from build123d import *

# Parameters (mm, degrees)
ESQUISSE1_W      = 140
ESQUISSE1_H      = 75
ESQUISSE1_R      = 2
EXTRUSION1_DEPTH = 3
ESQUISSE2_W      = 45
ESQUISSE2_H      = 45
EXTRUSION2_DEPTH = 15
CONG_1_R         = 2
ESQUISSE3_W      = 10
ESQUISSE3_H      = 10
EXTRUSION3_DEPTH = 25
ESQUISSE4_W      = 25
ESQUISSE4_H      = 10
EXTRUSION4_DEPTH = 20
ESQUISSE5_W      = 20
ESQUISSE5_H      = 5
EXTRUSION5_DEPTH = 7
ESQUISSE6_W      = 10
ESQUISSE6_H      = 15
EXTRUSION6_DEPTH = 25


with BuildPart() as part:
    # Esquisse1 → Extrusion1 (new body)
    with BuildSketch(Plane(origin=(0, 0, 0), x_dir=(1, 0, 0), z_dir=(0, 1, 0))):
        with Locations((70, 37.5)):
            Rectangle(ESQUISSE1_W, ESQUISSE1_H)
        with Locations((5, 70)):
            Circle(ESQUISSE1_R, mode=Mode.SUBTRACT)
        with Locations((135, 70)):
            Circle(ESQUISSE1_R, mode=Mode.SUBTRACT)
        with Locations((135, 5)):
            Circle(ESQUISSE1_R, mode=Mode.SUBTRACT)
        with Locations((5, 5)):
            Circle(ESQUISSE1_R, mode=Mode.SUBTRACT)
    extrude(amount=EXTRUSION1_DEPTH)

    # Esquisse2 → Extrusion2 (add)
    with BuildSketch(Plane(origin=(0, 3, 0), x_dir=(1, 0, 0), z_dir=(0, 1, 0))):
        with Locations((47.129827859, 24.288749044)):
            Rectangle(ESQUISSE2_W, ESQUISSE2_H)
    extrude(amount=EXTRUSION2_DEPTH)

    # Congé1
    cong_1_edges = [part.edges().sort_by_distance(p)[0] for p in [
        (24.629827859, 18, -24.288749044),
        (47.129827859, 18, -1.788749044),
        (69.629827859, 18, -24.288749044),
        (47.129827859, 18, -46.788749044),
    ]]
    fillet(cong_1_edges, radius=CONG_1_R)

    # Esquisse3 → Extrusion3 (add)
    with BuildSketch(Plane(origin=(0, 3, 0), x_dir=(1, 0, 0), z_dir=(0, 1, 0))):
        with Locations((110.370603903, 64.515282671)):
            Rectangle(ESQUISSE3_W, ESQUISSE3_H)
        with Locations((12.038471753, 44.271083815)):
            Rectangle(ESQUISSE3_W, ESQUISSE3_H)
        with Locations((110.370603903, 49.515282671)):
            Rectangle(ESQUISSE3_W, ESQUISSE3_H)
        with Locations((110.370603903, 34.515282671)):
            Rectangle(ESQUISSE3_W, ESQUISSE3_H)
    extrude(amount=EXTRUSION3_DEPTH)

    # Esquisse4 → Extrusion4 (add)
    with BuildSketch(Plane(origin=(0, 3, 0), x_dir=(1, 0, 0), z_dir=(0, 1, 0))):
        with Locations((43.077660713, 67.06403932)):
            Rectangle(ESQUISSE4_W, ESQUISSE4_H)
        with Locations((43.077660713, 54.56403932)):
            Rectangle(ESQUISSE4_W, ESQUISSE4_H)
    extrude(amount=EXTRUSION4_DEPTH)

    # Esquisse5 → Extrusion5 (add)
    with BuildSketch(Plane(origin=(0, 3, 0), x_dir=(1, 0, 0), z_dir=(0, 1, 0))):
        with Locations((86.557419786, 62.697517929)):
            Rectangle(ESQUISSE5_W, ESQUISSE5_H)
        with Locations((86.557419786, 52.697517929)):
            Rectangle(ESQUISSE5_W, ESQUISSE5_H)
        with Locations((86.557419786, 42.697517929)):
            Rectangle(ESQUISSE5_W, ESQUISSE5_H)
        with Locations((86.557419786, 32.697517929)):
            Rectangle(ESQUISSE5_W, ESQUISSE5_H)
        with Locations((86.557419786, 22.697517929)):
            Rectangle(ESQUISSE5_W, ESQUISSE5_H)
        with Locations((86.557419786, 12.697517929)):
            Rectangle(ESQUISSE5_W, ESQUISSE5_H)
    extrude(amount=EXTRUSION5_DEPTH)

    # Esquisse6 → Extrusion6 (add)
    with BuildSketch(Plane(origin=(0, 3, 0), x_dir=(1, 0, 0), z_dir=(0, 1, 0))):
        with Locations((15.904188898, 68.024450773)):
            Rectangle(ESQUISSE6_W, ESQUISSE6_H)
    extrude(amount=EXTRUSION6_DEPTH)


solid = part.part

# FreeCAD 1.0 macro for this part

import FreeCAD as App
import Part
import Sketcher


def edges_at(feature, points):
    """Names of the edges that pass closest to the given points."""
    edges = feature.Shape.Edges
    near = lambda p: min(range(len(edges)), key=lambda i: edges[i].distToShape(Part.Vertex(*p))[0])
    return sorted({f"Edge{near(p) + 1}" for p in points})

doc = App.newDocument("Part")
body = doc.addObject("PartDesign::Body", "Body")

# Sketch on XZ plane
sketch1 = body.newObject("Sketcher::SketchObject", "Sketch")
sketch1.AttachmentSupport = (doc.getObject("XZ_Plane"), [""])
sketch1.MapMode = "FlatFace"
sketch1.addGeometry([
    Part.LineSegment(App.Vector(0, -75, 0), App.Vector(0, 0, 0)),  # 0
    Part.LineSegment(App.Vector(0, 0, 0), App.Vector(140, 0, 0)),  # 1
    Part.LineSegment(App.Vector(140, 0, 0), App.Vector(140, -75, 0)),  # 2
    Part.LineSegment(App.Vector(140, -75, 0), App.Vector(0, -75, 0)),  # 3
    Part.Circle(App.Vector(5, -5, 0), App.Vector(0, 0, 1), 2),  # 4
    Part.Circle(App.Vector(135, -5, 0), App.Vector(0, 0, 1), 2),  # 5
    Part.Circle(App.Vector(5, -70, 0), App.Vector(0, 0, 1), 2),  # 6
    Part.Circle(App.Vector(135, -70, 0), App.Vector(0, 0, 1), 2),  # 7
], False)
sketch1.addConstraint([
    Sketcher.Constraint("Coincident", 0, 2, 1, 1),
    Sketcher.Constraint("Coincident", 1, 2, 2, 1),
    Sketcher.Constraint("Coincident", 2, 2, 3, 1),
    Sketcher.Constraint("Coincident", 3, 2, 0, 1),
    Sketcher.Constraint("Vertical", 0),
    Sketcher.Constraint("Horizontal", 1),
    Sketcher.Constraint("Vertical", 2),
    Sketcher.Constraint("Horizontal", 3),
    Sketcher.Constraint("Coincident", 0, 2, -1, 1),
    Sketcher.Constraint("Equal", 4, 5),
    Sketcher.Constraint("Equal", 5, 6),
    Sketcher.Constraint("Equal", 6, 7),
    Sketcher.Constraint("Horizontal", 4, 3, 5, 3),
    Sketcher.Constraint("Horizontal", 6, 3, 7, 3),
    Sketcher.Constraint("Vertical", 4, 3, 6, 3),
    Sketcher.Constraint("Vertical", 5, 3, 7, 3),
    Sketcher.Constraint("Diameter", 4, 4.0),
    Sketcher.Constraint("DistanceX", 1, 1, 1, 2, 140.0),
    Sketcher.Constraint("DistanceY", 0, 1, 0, 2, 75.0),
    Sketcher.Constraint("DistanceX", -1, 1, 4, 3, 5.0),
    Sketcher.Constraint("DistanceY", 4, 3, -1, 1, 5.0),
    Sketcher.Constraint("DistanceX", -1, 1, 5, 3, 135.0),
    Sketcher.Constraint("DistanceY", 6, 3, -1, 1, 70.0),
])
pad1 = body.newObject("PartDesign::Pad", "Pad")
pad1.Profile = sketch1
pad1.Length = 3
pad1.Reversed = True

# Sketch on XZ plane
sketch2 = body.newObject("Sketcher::SketchObject", "Sketch001")
sketch2.AttachmentSupport = (doc.getObject("XZ_Plane"), [""])
sketch2.MapMode = "FlatFace"
sketch2.AttachmentOffset = App.Placement(App.Vector(0, 0, -3), App.Rotation())
sketch2.addGeometry([
    Part.LineSegment(App.Vector(25, -47, 0), App.Vector(25, -2, 0)),
    Part.LineSegment(App.Vector(25, -2, 0), App.Vector(70, -2, 0)),
    Part.LineSegment(App.Vector(70, -2, 0), App.Vector(70, -47, 0)),
    Part.LineSegment(App.Vector(70, -47, 0), App.Vector(25, -47, 0)),
], False)
sketch2.addConstraint([
    Sketcher.Constraint("Coincident", 0, 2, 1, 1),
    Sketcher.Constraint("Coincident", 1, 2, 2, 1),
    Sketcher.Constraint("Coincident", 2, 2, 3, 1),
    Sketcher.Constraint("Coincident", 3, 2, 0, 1),
    Sketcher.Constraint("Vertical", 0),
    Sketcher.Constraint("Horizontal", 1),
    Sketcher.Constraint("Vertical", 2),
    Sketcher.Constraint("Horizontal", 3),
    Sketcher.Constraint("Equal", 3, 0),
    Sketcher.Constraint("DistanceX", 1, 1, 1, 2, 45.0),
    Sketcher.Constraint("DistanceY", 0, 2, -1, 1, 1.788749),
    Sketcher.Constraint("DistanceX", -1, 1, 0, 2, 24.629828),
])
pad2 = body.newObject("PartDesign::Pad", "Pad001")
pad2.Profile = sketch2
pad2.Length = 15
pad2.Reversed = True
doc.recompute()

fillet = body.newObject("PartDesign::Fillet", "Fillet")
fillet.Base = (pad2, edges_at(pad2, [
    (24.63, 18, -24.289),
    (47.13, 18, -1.789),
    (69.63, 18, -24.289),
    (47.13, 18, -46.789),
]))
fillet.Radius = 2

# Sketch on XZ plane
sketch3 = body.newObject("Sketcher::SketchObject", "Sketch002")
sketch3.AttachmentSupport = (doc.getObject("XZ_Plane"), [""])
sketch3.MapMode = "FlatFace"
sketch3.AttachmentOffset = App.Placement(App.Vector(0, 0, -3), App.Rotation())
sketch3.addGeometry([
    Part.LineSegment(App.Vector(105, -70, 0), App.Vector(105, -60, 0)),  # 0
    Part.LineSegment(App.Vector(105, -60, 0), App.Vector(115, -60, 0)),  # 1
    Part.LineSegment(App.Vector(115, -60, 0), App.Vector(115, -70, 0)),  # 2
    Part.LineSegment(App.Vector(115, -70, 0), App.Vector(105, -70, 0)),  # 3
    Part.LineSegment(App.Vector(7, -49, 0), App.Vector(7, -39, 0)),  # 4
    Part.LineSegment(App.Vector(7, -39, 0), App.Vector(17, -39, 0)),  # 5
    Part.LineSegment(App.Vector(17, -39, 0), App.Vector(17, -49, 0)),  # 6
    Part.LineSegment(App.Vector(17, -49, 0), App.Vector(7, -49, 0)),  # 7
    Part.LineSegment(App.Vector(105, -55, 0), App.Vector(105, -45, 0)),  # 8
    Part.LineSegment(App.Vector(105, -45, 0), App.Vector(115, -45, 0)),  # 9
    Part.LineSegment(App.Vector(115, -45, 0), App.Vector(115, -55, 0)),  # 10
    Part.LineSegment(App.Vector(115, -55, 0), App.Vector(105, -55, 0)),  # 11
    Part.LineSegment(App.Vector(105, -40, 0), App.Vector(105, -30, 0)),  # 12
    Part.LineSegment(App.Vector(105, -30, 0), App.Vector(115, -30, 0)),  # 13
    Part.LineSegment(App.Vector(115, -30, 0), App.Vector(115, -40, 0)),  # 14
    Part.LineSegment(App.Vector(115, -40, 0), App.Vector(105, -40, 0)),  # 15
], False)
sketch3.addConstraint([
    Sketcher.Constraint("Coincident", 0, 2, 1, 1),
    Sketcher.Constraint("Coincident", 1, 2, 2, 1),
    Sketcher.Constraint("Coincident", 2, 2, 3, 1),
    Sketcher.Constraint("Coincident", 3, 2, 0, 1),
    Sketcher.Constraint("Coincident", 4, 2, 5, 1),
    Sketcher.Constraint("Coincident", 5, 2, 6, 1),
    Sketcher.Constraint("Coincident", 6, 2, 7, 1),
    Sketcher.Constraint("Coincident", 7, 2, 4, 1),
    Sketcher.Constraint("Coincident", 8, 2, 9, 1),
    Sketcher.Constraint("Coincident", 9, 2, 10, 1),
    Sketcher.Constraint("Coincident", 10, 2, 11, 1),
    Sketcher.Constraint("Coincident", 11, 2, 8, 1),
    Sketcher.Constraint("Coincident", 12, 2, 13, 1),
    Sketcher.Constraint("Coincident", 13, 2, 14, 1),
    Sketcher.Constraint("Coincident", 14, 2, 15, 1),
    Sketcher.Constraint("Coincident", 15, 2, 12, 1),
    Sketcher.Constraint("Vertical", 0),
    Sketcher.Constraint("Horizontal", 1),
    Sketcher.Constraint("Vertical", 2),
    Sketcher.Constraint("Horizontal", 3),
    Sketcher.Constraint("Vertical", 4),
    Sketcher.Constraint("Horizontal", 5),
    Sketcher.Constraint("Vertical", 6),
    Sketcher.Constraint("Horizontal", 7),
    Sketcher.Constraint("Vertical", 8),
    Sketcher.Constraint("Horizontal", 9),
    Sketcher.Constraint("Vertical", 10),
    Sketcher.Constraint("Horizontal", 11),
    Sketcher.Constraint("Vertical", 12),
    Sketcher.Constraint("Horizontal", 13),
    Sketcher.Constraint("Vertical", 14),
    Sketcher.Constraint("Horizontal", 15),
    Sketcher.Constraint("Vertical", 3, 2, 8, 2),
    Sketcher.Constraint("Vertical", 2, 2, 9, 2),
    Sketcher.Constraint("Vertical", 11, 2, 12, 2),
    Sketcher.Constraint("Vertical", 10, 2, 13, 2),
    Sketcher.Constraint("Equal", 3, 5),
    Sketcher.Constraint("Equal", 15, 0),
    Sketcher.Constraint("Equal", 2, 4),
    Sketcher.Constraint("Equal", 6, 8),
    Sketcher.Constraint("Equal", 10, 12),
    Sketcher.Constraint("DistanceX", 1, 1, 1, 2, 10.0),
    Sketcher.Constraint("DistanceY", 0, 2, 8, 2, 15.0),
    Sketcher.Constraint("DistanceY", 8, 2, 12, 2, 15.0),
    Sketcher.Constraint("DistanceY", 0, 2, 4, 2, 20.244199),
    Sketcher.Constraint("DistanceX", -1, 1, 4, 2, 7.038472),
    Sketcher.Constraint("DistanceX", -1, 1, 0, 2, 105.370604),
    Sketcher.Constraint("DistanceY", 0, 2, -1, 1, 59.515283),
])
pad3 = body.newObject("PartDesign::Pad", "Pad002")
pad3.Profile = sketch3
pad3.Length = 25
pad3.Reversed = True

# Sketch on XZ plane
sketch4 = body.newObject("Sketcher::SketchObject", "Sketch003")
sketch4.AttachmentSupport = (doc.getObject("XZ_Plane"), [""])
sketch4.MapMode = "FlatFace"
sketch4.AttachmentOffset = App.Placement(App.Vector(0, 0, -3), App.Rotation())
sketch4.addGeometry([
    Part.LineSegment(App.Vector(31, -72, 0), App.Vector(31, -62, 0)),  # 0
    Part.LineSegment(App.Vector(31, -62, 0), App.Vector(56, -62, 0)),  # 1
    Part.LineSegment(App.Vector(56, -62, 0), App.Vector(56, -72, 0)),  # 2
    Part.LineSegment(App.Vector(56, -72, 0), App.Vector(31, -72, 0)),  # 3
    Part.LineSegment(App.Vector(31, -60, 0), App.Vector(31, -50, 0)),  # 4
    Part.LineSegment(App.Vector(31, -50, 0), App.Vector(56, -50, 0)),  # 5
    Part.LineSegment(App.Vector(56, -50, 0), App.Vector(56, -60, 0)),  # 6
    Part.LineSegment(App.Vector(56, -60, 0), App.Vector(31, -60, 0)),  # 7
], False)
sketch4.addConstraint([
    Sketcher.Constraint("Coincident", 0, 2, 1, 1),
    Sketcher.Constraint("Coincident", 1, 2, 2, 1),
    Sketcher.Constraint("Coincident", 2, 2, 3, 1),
    Sketcher.Constraint("Coincident", 3, 2, 0, 1),
    Sketcher.Constraint("Coincident", 4, 2, 5, 1),
    Sketcher.Constraint("Coincident", 5, 2, 6, 1),
    Sketcher.Constraint("Coincident", 6, 2, 7, 1),
    Sketcher.Constraint("Coincident", 7, 2, 4, 1),
    Sketcher.Constraint("Vertical", 0),
    Sketcher.Constraint("Horizontal", 1),
    Sketcher.Constraint("Vertical", 2),
    Sketcher.Constraint("Horizontal", 3),
    Sketcher.Constraint("Vertical", 4),
    Sketcher.Constraint("Horizontal", 5),
    Sketcher.Constraint("Vertical", 6),
    Sketcher.Constraint("Horizontal", 7),
    Sketcher.Constraint("Vertical", 3, 2, 4, 2),
    Sketcher.Constraint("Vertical", 2, 2, 5, 2),
    Sketcher.Constraint("Equal", 2, 4),
    Sketcher.Constraint("DistanceX", 1, 1, 1, 2, 25.0),
    Sketcher.Constraint("DistanceY", 0, 1, 0, 2, 10.0),
    Sketcher.Constraint("DistanceY", 0, 2, 4, 2, 12.5),
    Sketcher.Constraint("DistanceX", -1, 1, 0, 2, 30.577661),
    Sketcher.Constraint("DistanceY", 0, 2, -1, 1, 62.064039),
])
pad4 = body.newObject("PartDesign::Pad", "Pad003")
pad4.Profile = sketch4
pad4.Length = 20
pad4.Reversed = True

# Sketch on XZ plane
sketch5 = body.newObject("Sketcher::SketchObject", "Sketch004")
sketch5.AttachmentSupport = (doc.getObject("XZ_Plane"), [""])
sketch5.MapMode = "FlatFace"
sketch5.AttachmentOffset = App.Placement(App.Vector(0, 0, -3), App.Rotation())
sketch5.addGeometry([
    Part.LineSegment(App.Vector(77, -65, 0), App.Vector(77, -60, 0)),  # 0
    Part.LineSegment(App.Vector(77, -60, 0), App.Vector(97, -60, 0)),  # 1
    Part.LineSegment(App.Vector(97, -60, 0), App.Vector(97, -65, 0)),  # 2
    Part.LineSegment(App.Vector(97, -65, 0), App.Vector(77, -65, 0)),  # 3
    Part.LineSegment(App.Vector(77, -55, 0), App.Vector(77, -50, 0)),  # 4
    Part.LineSegment(App.Vector(77, -50, 0), App.Vector(97, -50, 0)),  # 5
    Part.LineSegment(App.Vector(97, -50, 0), App.Vector(97, -55, 0)),  # 6
    Part.LineSegment(App.Vector(97, -55, 0), App.Vector(77, -55, 0)),  # 7
    Part.LineSegment(App.Vector(77, -45, 0), App.Vector(77, -40, 0)),  # 8
    Part.LineSegment(App.Vector(77, -40, 0), App.Vector(97, -40, 0)),  # 9
    Part.LineSegment(App.Vector(97, -40, 0), App.Vector(97, -45, 0)),  # 10
    Part.LineSegment(App.Vector(97, -45, 0), App.Vector(77, -45, 0)),  # 11
    Part.LineSegment(App.Vector(77, -35, 0), App.Vector(77, -30, 0)),  # 12
    Part.LineSegment(App.Vector(77, -30, 0), App.Vector(97, -30, 0)),  # 13
    Part.LineSegment(App.Vector(97, -30, 0), App.Vector(97, -35, 0)),  # 14
    Part.LineSegment(App.Vector(97, -35, 0), App.Vector(77, -35, 0)),  # 15
    Part.LineSegment(App.Vector(77, -25, 0), App.Vector(77, -20, 0)),  # 16
    Part.LineSegment(App.Vector(77, -20, 0), App.Vector(97, -20, 0)),  # 17
    Part.LineSegment(App.Vector(97, -20, 0), App.Vector(97, -25, 0)),  # 18
    Part.LineSegment(App.Vector(97, -25, 0), App.Vector(77, -25, 0)),  # 19
    Part.LineSegment(App.Vector(77, -15, 0), App.Vector(77, -10, 0)),  # 20
    Part.LineSegment(App.Vector(77, -10, 0), App.Vector(97, -10, 0)),  # 21
    Part.LineSegment(App.Vector(97, -10, 0), App.Vector(97, -15, 0)),  # 22
    Part.LineSegment(App.Vector(97, -15, 0), App.Vector(77, -15, 0)),  # 23
], False)
sketch5.addConstraint([
    Sketcher.Constraint("Coincident", 0, 2, 1, 1),
    Sketcher.Constraint("Coincident", 1, 2, 2, 1),
    Sketcher.Constraint("Coincident", 2, 2, 3, 1),
    Sketcher.Constraint("Coincident", 3, 2, 0, 1),
    Sketcher.Constraint("Coincident", 4, 2, 5, 1),
    Sketcher.Constraint("Coincident", 5, 2, 6, 1),
    Sketcher.Constraint("Coincident", 6, 2, 7, 1),
    Sketcher.Constraint("Coincident", 7, 2, 4, 1),
    Sketcher.Constraint("Coincident", 8, 2, 9, 1),
    Sketcher.Constraint("Coincident", 9, 2, 10, 1),
    Sketcher.Constraint("Coincident", 10, 2, 11, 1),
    Sketcher.Constraint("Coincident", 11, 2, 8, 1),
    Sketcher.Constraint("Coincident", 12, 2, 13, 1),
    Sketcher.Constraint("Coincident", 13, 2, 14, 1),
    Sketcher.Constraint("Coincident", 14, 2, 15, 1),
    Sketcher.Constraint("Coincident", 15, 2, 12, 1),
    Sketcher.Constraint("Coincident", 16, 2, 17, 1),
    Sketcher.Constraint("Coincident", 17, 2, 18, 1),
    Sketcher.Constraint("Coincident", 18, 2, 19, 1),
    Sketcher.Constraint("Coincident", 19, 2, 16, 1),
    Sketcher.Constraint("Coincident", 20, 2, 21, 1),
    Sketcher.Constraint("Coincident", 21, 2, 22, 1),
    Sketcher.Constraint("Coincident", 22, 2, 23, 1),
    Sketcher.Constraint("Coincident", 23, 2, 20, 1),
    Sketcher.Constraint("Vertical", 0),
    Sketcher.Constraint("Horizontal", 1),
    Sketcher.Constraint("Vertical", 2),
    Sketcher.Constraint("Horizontal", 3),
    Sketcher.Constraint("Vertical", 4),
    Sketcher.Constraint("Horizontal", 5),
    Sketcher.Constraint("Vertical", 6),
    Sketcher.Constraint("Horizontal", 7),
    Sketcher.Constraint("Vertical", 8),
    Sketcher.Constraint("Horizontal", 9),
    Sketcher.Constraint("Vertical", 10),
    Sketcher.Constraint("Horizontal", 11),
    Sketcher.Constraint("Vertical", 12),
    Sketcher.Constraint("Horizontal", 13),
    Sketcher.Constraint("Vertical", 14),
    Sketcher.Constraint("Horizontal", 15),
    Sketcher.Constraint("Vertical", 16),
    Sketcher.Constraint("Horizontal", 17),
    Sketcher.Constraint("Vertical", 18),
    Sketcher.Constraint("Horizontal", 19),
    Sketcher.Constraint("Vertical", 20),
    Sketcher.Constraint("Horizontal", 21),
    Sketcher.Constraint("Vertical", 22),
    Sketcher.Constraint("Horizontal", 23),
    Sketcher.Constraint("Vertical", 3, 2, 4, 2),
    Sketcher.Constraint("Vertical", 2, 2, 5, 2),
    Sketcher.Constraint("Vertical", 7, 2, 8, 2),
    Sketcher.Constraint("Vertical", 6, 2, 9, 2),
    Sketcher.Constraint("Vertical", 11, 2, 12, 2),
    Sketcher.Constraint("Vertical", 10, 2, 13, 2),
    Sketcher.Constraint("Vertical", 15, 2, 16, 2),
    Sketcher.Constraint("Vertical", 14, 2, 17, 2),
    Sketcher.Constraint("Vertical", 19, 2, 20, 2),
    Sketcher.Constraint("Vertical", 18, 2, 21, 2),
    Sketcher.Constraint("Equal", 2, 4),
    Sketcher.Constraint("Equal", 6, 8),
    Sketcher.Constraint("Equal", 10, 12),
    Sketcher.Constraint("Equal", 14, 16),
    Sketcher.Constraint("Equal", 18, 20),
    Sketcher.Constraint("DistanceX", 1, 1, 1, 2, 20.0),
    Sketcher.Constraint("DistanceY", 0, 1, 0, 2, 5.0),
    Sketcher.Constraint("DistanceY", 0, 2, 4, 2, 10.0),
    Sketcher.Constraint("DistanceY", 4, 2, 8, 2, 10.0),
    Sketcher.Constraint("DistanceY", 8, 2, 12, 2, 10.0),
    Sketcher.Constraint("DistanceY", 12, 2, 16, 2, 10.0),
    Sketcher.Constraint("DistanceY", 16, 2, 20, 2, 10.0),
    Sketcher.Constraint("DistanceX", -1, 1, 0, 2, 76.55742),
    Sketcher.Constraint("DistanceY", 0, 2, -1, 1, 60.197518),
])
pad5 = body.newObject("PartDesign::Pad", "Pad004")
pad5.Profile = sketch5
pad5.Length = 7
pad5.Reversed = True

# Sketch on XZ plane
sketch6 = body.newObject("Sketcher::SketchObject", "Sketch005")
sketch6.AttachmentSupport = (doc.getObject("XZ_Plane"), [""])
sketch6.MapMode = "FlatFace"
sketch6.AttachmentOffset = App.Placement(App.Vector(0, 0, -3), App.Rotation())
sketch6.addGeometry([
    Part.LineSegment(App.Vector(11, -76, 0), App.Vector(11, -61, 0)),
    Part.LineSegment(App.Vector(11, -61, 0), App.Vector(21, -61, 0)),
    Part.LineSegment(App.Vector(21, -61, 0), App.Vector(21, -76, 0)),
    Part.LineSegment(App.Vector(21, -76, 0), App.Vector(11, -76, 0)),
], False)
sketch6.addConstraint([
    Sketcher.Constraint("Coincident", 0, 2, 1, 1),
    Sketcher.Constraint("Coincident", 1, 2, 2, 1),
    Sketcher.Constraint("Coincident", 2, 2, 3, 1),
    Sketcher.Constraint("Coincident", 3, 2, 0, 1),
    Sketcher.Constraint("Vertical", 0),
    Sketcher.Constraint("Horizontal", 1),
    Sketcher.Constraint("Vertical", 2),
    Sketcher.Constraint("Horizontal", 3),
    Sketcher.Constraint("DistanceX", 1, 1, 1, 2, 10.0),
    Sketcher.Constraint("DistanceY", 0, 1, 0, 2, 15.0),
    Sketcher.Constraint("DistanceX", -1, 1, 0, 2, 10.904189),
    Sketcher.Constraint("DistanceY", 0, 2, -1, 1, 60.524451),
])
pad6 = body.newObject("PartDesign::Pad", "Pad005")
pad6.Profile = sketch6
pad6.Length = 25
pad6.Reversed = True

doc.recompute()
